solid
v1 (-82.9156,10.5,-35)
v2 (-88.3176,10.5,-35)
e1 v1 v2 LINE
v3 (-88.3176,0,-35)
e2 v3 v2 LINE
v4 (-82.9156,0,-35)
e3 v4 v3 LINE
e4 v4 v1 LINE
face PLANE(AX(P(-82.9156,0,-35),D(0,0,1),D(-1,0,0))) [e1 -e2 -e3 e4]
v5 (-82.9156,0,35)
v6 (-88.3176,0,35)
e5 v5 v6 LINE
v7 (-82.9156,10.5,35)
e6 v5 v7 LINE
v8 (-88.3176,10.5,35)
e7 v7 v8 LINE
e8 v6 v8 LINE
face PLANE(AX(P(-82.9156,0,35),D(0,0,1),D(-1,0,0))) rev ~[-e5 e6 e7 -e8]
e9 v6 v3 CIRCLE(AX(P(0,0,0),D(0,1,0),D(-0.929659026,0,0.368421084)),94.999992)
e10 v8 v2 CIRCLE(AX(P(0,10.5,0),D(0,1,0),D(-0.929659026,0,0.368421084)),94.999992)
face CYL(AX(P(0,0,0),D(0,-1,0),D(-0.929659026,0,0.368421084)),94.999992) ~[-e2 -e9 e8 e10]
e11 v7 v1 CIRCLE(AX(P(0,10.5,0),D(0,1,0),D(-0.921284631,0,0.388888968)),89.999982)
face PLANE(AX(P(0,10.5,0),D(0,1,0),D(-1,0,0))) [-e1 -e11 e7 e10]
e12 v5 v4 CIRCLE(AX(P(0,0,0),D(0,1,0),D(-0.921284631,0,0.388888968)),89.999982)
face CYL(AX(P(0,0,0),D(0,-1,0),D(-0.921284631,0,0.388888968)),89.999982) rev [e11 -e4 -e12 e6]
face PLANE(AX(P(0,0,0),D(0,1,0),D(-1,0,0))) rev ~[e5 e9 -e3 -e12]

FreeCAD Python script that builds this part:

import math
import FreeCAD as App
import Part
import Sketcher

V = App.Vector
Q = App.Units.Quantity

doc = App.newDocument("Part")
body = doc.addObject("PartDesign::Body", "Body")

sketch1 = doc.addObject("Sketcher::SketchObject", "Sketch")
body.addObject(sketch1)
sketch1.AttachmentSupport = (doc.XZ_Plane, [""])
sketch1.MapMode = "FlatFace"
sketch1.addGeometry(Part.ArcOfCircle(Part.Circle(V(0, 0, 0), V(0, 0, 1), 90), math.radians(-157), math.radians(157)), False)
sketch1.addGeometry(Part.LineSegment(V(-83, 35, 0), V(-88, 35, 0)), False)
sketch1.addGeometry(Part.ArcOfCircle(Part.Circle(V(0, 0, 0), V(0, 0, 1), 95), math.radians(-158), math.radians(158)), False)
sketch1.addGeometry(Part.LineSegment(V(-88, -35, 0), V(-83, -35, 0)), False)
sketch1.addConstraint(Sketcher.Constraint("Coincident", 0, 2, 1, 1))
sketch1.addConstraint(Sketcher.Constraint("Coincident", 1, 2, 2, 2))
sketch1.addConstraint(Sketcher.Constraint("Coincident", 2, 1, 3, 1))
sketch1.addConstraint(Sketcher.Constraint("Coincident", 3, 2, 0, 1))
sketch1.addConstraint(Sketcher.Constraint("Horizontal", 1))
sketch1.addConstraint(Sketcher.Constraint("Horizontal", 3))
sketch1.addConstraint(Sketcher.Constraint("Coincident", 0, 3, -1, 1))
sketch1.addConstraint(Sketcher.Constraint("Coincident", 2, 3, -1, 1))
sketch1.addConstraint(Sketcher.Constraint("Vertical", 1, 2, 2, 1))
sketch1.addConstraint(Sketcher.Constraint("Radius", 0, Q("90 mm")))
sketch1.addConstraint(Sketcher.Constraint("Radius", 2, Q("95 mm")))
sketch1.addConstraint(Sketcher.Constraint("DistanceY", -1, 1, 0, 2, Q("35 mm")))
pad1 = doc.addObject("PartDesign::Pad", "Pad")
body.addObject(pad1)
pad1.Profile = sketch1
pad1.Length = 10.5
pad1.Reversed = True

doc.recompute()
